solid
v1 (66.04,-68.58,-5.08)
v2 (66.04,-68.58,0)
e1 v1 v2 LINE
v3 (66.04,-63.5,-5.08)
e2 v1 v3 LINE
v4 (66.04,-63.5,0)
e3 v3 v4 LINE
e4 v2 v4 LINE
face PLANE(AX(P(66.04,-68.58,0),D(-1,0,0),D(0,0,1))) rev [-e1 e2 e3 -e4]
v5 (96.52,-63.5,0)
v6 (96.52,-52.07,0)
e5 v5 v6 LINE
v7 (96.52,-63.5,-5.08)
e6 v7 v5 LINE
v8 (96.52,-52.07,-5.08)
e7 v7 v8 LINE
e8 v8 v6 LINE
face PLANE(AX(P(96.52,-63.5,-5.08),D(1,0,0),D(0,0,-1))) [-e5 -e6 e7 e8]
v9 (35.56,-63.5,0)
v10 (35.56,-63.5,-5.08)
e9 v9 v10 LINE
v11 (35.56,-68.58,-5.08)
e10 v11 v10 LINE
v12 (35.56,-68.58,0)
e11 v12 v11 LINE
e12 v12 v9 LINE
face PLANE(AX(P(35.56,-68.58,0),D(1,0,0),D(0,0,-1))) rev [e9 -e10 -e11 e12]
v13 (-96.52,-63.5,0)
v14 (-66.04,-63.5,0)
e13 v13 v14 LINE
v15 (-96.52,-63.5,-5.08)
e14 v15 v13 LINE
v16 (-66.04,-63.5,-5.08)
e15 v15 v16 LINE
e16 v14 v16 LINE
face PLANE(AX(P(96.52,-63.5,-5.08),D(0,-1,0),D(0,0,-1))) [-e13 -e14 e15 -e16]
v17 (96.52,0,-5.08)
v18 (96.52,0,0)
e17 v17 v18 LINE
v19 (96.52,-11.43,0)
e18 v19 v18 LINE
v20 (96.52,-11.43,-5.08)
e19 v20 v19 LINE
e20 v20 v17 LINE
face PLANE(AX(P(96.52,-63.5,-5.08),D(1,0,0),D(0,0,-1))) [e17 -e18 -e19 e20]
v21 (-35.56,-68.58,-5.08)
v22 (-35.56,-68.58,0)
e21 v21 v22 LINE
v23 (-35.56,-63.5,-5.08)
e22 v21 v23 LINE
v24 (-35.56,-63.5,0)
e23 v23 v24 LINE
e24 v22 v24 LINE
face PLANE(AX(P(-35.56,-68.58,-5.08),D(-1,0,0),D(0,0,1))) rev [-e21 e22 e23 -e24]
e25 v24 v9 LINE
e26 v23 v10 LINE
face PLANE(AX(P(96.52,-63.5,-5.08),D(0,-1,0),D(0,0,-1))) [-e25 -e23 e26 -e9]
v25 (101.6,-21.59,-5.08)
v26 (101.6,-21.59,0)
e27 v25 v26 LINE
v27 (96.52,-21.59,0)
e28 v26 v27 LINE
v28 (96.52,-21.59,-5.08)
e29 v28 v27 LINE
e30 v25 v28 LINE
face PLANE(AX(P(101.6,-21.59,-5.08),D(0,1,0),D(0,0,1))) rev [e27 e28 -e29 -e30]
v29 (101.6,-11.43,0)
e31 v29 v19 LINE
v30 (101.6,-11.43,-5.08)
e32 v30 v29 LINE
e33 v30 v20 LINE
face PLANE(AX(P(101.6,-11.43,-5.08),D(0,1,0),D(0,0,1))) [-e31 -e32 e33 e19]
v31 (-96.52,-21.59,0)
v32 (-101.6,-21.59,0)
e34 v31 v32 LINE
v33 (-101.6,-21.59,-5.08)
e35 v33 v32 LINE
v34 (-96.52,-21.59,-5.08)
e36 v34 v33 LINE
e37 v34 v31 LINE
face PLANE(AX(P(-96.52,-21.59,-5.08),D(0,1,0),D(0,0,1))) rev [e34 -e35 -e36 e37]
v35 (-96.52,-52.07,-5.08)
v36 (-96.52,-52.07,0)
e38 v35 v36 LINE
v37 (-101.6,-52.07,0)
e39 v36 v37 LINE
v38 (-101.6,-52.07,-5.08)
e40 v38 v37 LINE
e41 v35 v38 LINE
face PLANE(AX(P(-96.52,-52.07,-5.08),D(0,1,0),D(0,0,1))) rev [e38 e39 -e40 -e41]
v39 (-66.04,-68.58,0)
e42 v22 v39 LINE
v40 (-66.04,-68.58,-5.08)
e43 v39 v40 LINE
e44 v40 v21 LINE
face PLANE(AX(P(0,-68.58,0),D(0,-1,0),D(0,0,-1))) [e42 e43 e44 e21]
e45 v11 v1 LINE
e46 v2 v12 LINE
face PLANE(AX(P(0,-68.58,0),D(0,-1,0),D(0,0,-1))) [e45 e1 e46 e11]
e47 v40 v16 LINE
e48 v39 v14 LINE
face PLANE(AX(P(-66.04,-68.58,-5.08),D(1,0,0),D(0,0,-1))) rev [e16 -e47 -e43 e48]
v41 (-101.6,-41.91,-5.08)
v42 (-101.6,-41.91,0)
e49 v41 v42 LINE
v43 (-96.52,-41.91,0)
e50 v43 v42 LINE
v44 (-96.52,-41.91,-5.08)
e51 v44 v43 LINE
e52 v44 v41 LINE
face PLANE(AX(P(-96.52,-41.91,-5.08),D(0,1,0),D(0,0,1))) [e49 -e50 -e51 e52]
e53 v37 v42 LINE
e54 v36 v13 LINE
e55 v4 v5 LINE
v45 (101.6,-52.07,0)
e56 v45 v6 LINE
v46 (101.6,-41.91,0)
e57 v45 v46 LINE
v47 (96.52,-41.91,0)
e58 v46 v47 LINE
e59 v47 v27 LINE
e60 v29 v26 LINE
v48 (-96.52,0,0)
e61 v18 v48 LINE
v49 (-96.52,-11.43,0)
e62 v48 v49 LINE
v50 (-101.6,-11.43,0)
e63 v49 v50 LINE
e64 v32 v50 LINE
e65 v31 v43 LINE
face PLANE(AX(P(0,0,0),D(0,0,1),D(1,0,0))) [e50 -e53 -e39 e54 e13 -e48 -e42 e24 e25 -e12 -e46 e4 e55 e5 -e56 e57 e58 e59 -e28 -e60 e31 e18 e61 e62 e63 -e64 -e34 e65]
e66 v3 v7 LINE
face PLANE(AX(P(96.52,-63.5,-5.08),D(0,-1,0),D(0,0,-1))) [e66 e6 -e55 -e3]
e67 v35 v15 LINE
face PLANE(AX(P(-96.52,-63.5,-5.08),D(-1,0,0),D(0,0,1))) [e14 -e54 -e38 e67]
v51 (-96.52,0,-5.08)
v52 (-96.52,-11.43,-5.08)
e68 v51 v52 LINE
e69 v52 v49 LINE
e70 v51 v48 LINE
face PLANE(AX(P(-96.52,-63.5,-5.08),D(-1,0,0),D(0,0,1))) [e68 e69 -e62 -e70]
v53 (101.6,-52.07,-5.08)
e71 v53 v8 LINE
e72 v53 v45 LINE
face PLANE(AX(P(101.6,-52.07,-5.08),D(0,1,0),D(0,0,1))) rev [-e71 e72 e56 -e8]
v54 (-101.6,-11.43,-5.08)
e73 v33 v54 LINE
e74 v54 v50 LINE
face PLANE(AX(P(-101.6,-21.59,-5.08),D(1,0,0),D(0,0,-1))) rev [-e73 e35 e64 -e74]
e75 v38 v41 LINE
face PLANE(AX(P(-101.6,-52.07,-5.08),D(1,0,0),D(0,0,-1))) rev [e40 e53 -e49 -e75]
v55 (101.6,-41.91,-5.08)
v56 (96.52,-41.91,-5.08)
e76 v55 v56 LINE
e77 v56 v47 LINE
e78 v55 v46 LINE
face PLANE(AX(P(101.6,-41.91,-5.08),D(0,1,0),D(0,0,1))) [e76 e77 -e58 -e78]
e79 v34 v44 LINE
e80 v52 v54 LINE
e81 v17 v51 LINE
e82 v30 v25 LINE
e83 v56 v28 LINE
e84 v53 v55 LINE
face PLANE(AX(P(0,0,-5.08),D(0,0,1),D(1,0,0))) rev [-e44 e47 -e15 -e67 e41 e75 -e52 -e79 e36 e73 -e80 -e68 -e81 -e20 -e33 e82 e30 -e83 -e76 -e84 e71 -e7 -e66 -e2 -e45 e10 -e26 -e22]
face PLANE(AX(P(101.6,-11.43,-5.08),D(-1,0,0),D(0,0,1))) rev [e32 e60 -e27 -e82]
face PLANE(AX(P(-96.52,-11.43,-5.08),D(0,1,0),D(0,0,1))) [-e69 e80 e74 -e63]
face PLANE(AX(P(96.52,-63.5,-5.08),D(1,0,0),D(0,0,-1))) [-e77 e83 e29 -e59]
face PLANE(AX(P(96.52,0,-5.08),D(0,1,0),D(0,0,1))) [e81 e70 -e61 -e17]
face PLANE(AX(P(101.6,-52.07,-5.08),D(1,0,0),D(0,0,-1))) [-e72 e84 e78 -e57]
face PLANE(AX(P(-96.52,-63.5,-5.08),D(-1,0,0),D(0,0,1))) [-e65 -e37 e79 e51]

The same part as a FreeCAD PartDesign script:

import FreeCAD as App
import Part
import Sketcher
from FreeCAD import Vector
Q = App.Units.Quantity

doc = App.newDocument("Part")
body = doc.addObject("PartDesign::Body", "Body")

sketch1 = body.newObject("Sketcher::SketchObject", "Sketch")
sketch1.AttachmentSupport = (doc.getObject("XY_Plane"), [""])
sketch1.MapMode = "FlatFace"
sketch1.addGeometry([
    Part.LineSegment(Vector(-97, 0, 0), Vector(-97, -64, 0)),
    Part.LineSegment(Vector(-97, -64, 0), Vector(97, -64, 0)),
    Part.LineSegment(Vector(97, -64, 0), Vector(97, 0, 0)),
    Part.LineSegment(Vector(97, 0, 0), Vector(-97, 0, 0)),
], False)
sketch1.addConstraint([
    Sketcher.Constraint("Coincident", 0, 2, 1, 1),
    Sketcher.Constraint("Coincident", 1, 2, 2, 1),
    Sketcher.Constraint("Coincident", 2, 2, 3, 1),
    Sketcher.Constraint("Coincident", 3, 2, 0, 1),
    Sketcher.Constraint("Vertical", 0),
    Sketcher.Constraint("Horizontal", 1),
    Sketcher.Constraint("Vertical", 2),
    Sketcher.Constraint("Horizontal", 3),
    Sketcher.Constraint("Symmetric", 2, 2, 3, 2, -1, 1),
    Sketcher.Constraint("DistanceX", 1, 1, 1, 2, Q("7.6 in")),
    Sketcher.Constraint("DistanceY", 0, 2, 0, 1, Q("2.5 in")),
])
pad1 = body.newObject("PartDesign::Pad", "Pad")
pad1.Profile = sketch1
pad1.Length = Q("0.2 in")
pad1.Reversed = True

sketch2 = body.newObject("Sketcher::SketchObject", "Sketch001")
sketch2.AttachmentSupport = (doc.getObject("XY_Plane"), [""])
sketch2.MapMode = "FlatFace"
sketch2.addGeometry([
    Part.LineSegment(Vector(97, -42, 0), Vector(97, -52, 0)),
    Part.LineSegment(Vector(97, -52, 0), Vector(102, -52, 0)),
    Part.LineSegment(Vector(102, -52, 0), Vector(102, -42, 0)),
    Part.LineSegment(Vector(102, -42, 0), Vector(97, -42, 0)),
    Part.LineSegment(Vector(97, -11, 0), Vector(97, -22, 0)),
    Part.LineSegment(Vector(97, -22, 0), Vector(102, -22, 0)),
    Part.LineSegment(Vector(102, -22, 0), Vector(102, -11, 0)),
    Part.LineSegment(Vector(102, -11, 0), Vector(97, -11, 0)),
    Part.LineSegment(Vector(-102, -42, 0), Vector(-102, -52, 0)),
    Part.LineSegment(Vector(-102, -52, 0), Vector(-97, -52, 0)),
    Part.LineSegment(Vector(-97, -52, 0), Vector(-97, -42, 0)),
    Part.LineSegment(Vector(-97, -42, 0), Vector(-102, -42, 0)),
    Part.LineSegment(Vector(-102, -11, 0), Vector(-102, -22, 0)),
    Part.LineSegment(Vector(-102, -22, 0), Vector(-97, -22, 0)),
    Part.LineSegment(Vector(-97, -22, 0), Vector(-97, -11, 0)),
    Part.LineSegment(Vector(-97, -11, 0), Vector(-102, -11, 0)),
], False)
sketch2.addConstraint([
    Sketcher.Constraint("Coincident", 0, 2, 1, 1),
    Sketcher.Constraint("Coincident", 1, 2, 2, 1),
    Sketcher.Constraint("Coincident", 2, 2, 3, 1),
    Sketcher.Constraint("Coincident", 3, 2, 0, 1),
    Sketcher.Constraint("Coincident", 4, 2, 5, 1),
    Sketcher.Constraint("Coincident", 5, 2, 6, 1),
    Sketcher.Constraint("Coincident", 6, 2, 7, 1),
    Sketcher.Constraint("Coincident", 7, 2, 4, 1),
    Sketcher.Constraint("Coincident", 8, 2, 9, 1),
    Sketcher.Constraint("Coincident", 9, 2, 10, 1),
    Sketcher.Constraint("Coincident", 10, 2, 11, 1),
    Sketcher.Constraint("Coincident", 11, 2, 8, 1),
    Sketcher.Constraint("Coincident", 12, 2, 13, 1),
    Sketcher.Constraint("Coincident", 13, 2, 14, 1),
    Sketcher.Constraint("Coincident", 14, 2, 15, 1),
    Sketcher.Constraint("Coincident", 15, 2, 12, 1),
    Sketcher.Constraint("Vertical", 0),
    Sketcher.Constraint("Horizontal", 1),
    Sketcher.Constraint("Vertical", 2),
    Sketcher.Constraint("Horizontal", 3),
    Sketcher.Constraint("Vertical", 4),
    Sketcher.Constraint("Horizontal", 5),
    Sketcher.Constraint("Vertical", 6),
    Sketcher.Constraint("Horizontal", 7),
    Sketcher.Constraint("Vertical", 8),
    Sketcher.Constraint("Horizontal", 9),
    Sketcher.Constraint("Vertical", 10),
    Sketcher.Constraint("Horizontal", 11),
    Sketcher.Constraint("Vertical", 12),
    Sketcher.Constraint("Horizontal", 13),
    Sketcher.Constraint("Vertical", 14),
    Sketcher.Constraint("Horizontal", 15),
    Sketcher.Constraint("Symmetric", 1, 2, 8, 2, -2),
    Sketcher.Constraint("Symmetric", 3, 2, 10, 2, -2),
    Sketcher.Constraint("Symmetric", 5, 2, 12, 2, -2),
    Sketcher.Constraint("Symmetric", 7, 2, 14, 2, -2),
    Sketcher.Constraint("Vertical", 3, 2, 4, 2),
    Sketcher.Constraint("Vertical", 2, 2, 5, 2),
    Sketcher.Constraint("Equal", 2, 4),
    Sketcher.Constraint("DistanceX", 1, 1, 1, 2, Q("0.2 in")),
    Sketcher.Constraint("DistanceY", 0, 2, 0, 1, Q("0.4 in")),
    Sketcher.Constraint("DistanceX", -1, 1, 1, 2, Q("4 in")),
    Sketcher.Constraint("DistanceY", 3, 2, 4, 2, Q("0.8 in")),
    Sketcher.Constraint("DistanceY", 0, 2, -1, 1, Q("2.05 in")),
])
pad2 = body.newObject("PartDesign::Pad", "Pad001")
pad2.Profile = sketch2
pad2.Length = Q("0.2 in")
pad2.Reversed = True

sketch3 = body.newObject("Sketcher::SketchObject", "Sketch002")
sketch3.AttachmentSupport = (doc.getObject("XZ_Plane"), [""])
sketch3.MapMode = "FlatFace"
sketch3.AttachmentOffset = App.Placement(Vector(0, 0, 2.5 * 25.4), App.Rotation())
sketch3.addGeometry([
    Part.LineSegment(Vector(36, 0, 0), Vector(36, -5, 0)),
    Part.LineSegment(Vector(36, -5, 0), Vector(66, -5, 0)),
    Part.LineSegment(Vector(66, -5, 0), Vector(66, 0, 0)),
    Part.LineSegment(Vector(66, 0, 0), Vector(36, 0, 0)),
    Part.LineSegment(Vector(-66, 0, 0), Vector(-66, -5, 0)),
    Part.LineSegment(Vector(-66, -5, 0), Vector(-36, -5, 0)),
    Part.LineSegment(Vector(-36, -5, 0), Vector(-36, 0, 0)),
    Part.LineSegment(Vector(-36, 0, 0), Vector(-66, 0, 0)),
], False)
sketch3.addConstraint([
    Sketcher.Constraint("Coincident", 0, 2, 1, 1),
    Sketcher.Constraint("Coincident", 1, 2, 2, 1),
    Sketcher.Constraint("Coincident", 2, 2, 3, 1),
    Sketcher.Constraint("Coincident", 3, 2, 0, 1),
    Sketcher.Constraint("Coincident", 4, 2, 5, 1),
    Sketcher.Constraint("Coincident", 5, 2, 6, 1),
    Sketcher.Constraint("Coincident", 6, 2, 7, 1),
    Sketcher.Constraint("Coincident", 7, 2, 4, 1),
    Sketcher.Constraint("Vertical", 0),
    Sketcher.Constraint("Horizontal", 1),
    Sketcher.Constraint("Vertical", 2),
    Sketcher.Constraint("Horizontal", 3),
    Sketcher.Constraint("Vertical", 4),
    Sketcher.Constraint("Horizontal", 5),
    Sketcher.Constraint("Vertical", 6),
    Sketcher.Constraint("Horizontal", 7),
    Sketcher.Constraint("Symmetric", 3, 2, 6, 2, -1, 1),
    Sketcher.Constraint("Symmetric", 1, 2, 4, 2, -2),
    Sketcher.Constraint("PointOnObject", 2, 2, -1),
    Sketcher.Constraint("DistanceX", 1, 1, 1, 2, Q("1.2 in")),
    Sketcher.Constraint("DistanceY", 0, 2, 0, 1, Q("0.2 in")),
    Sketcher.Constraint("DistanceX", 4, 2, 0, 2, Q("4 in")),
])
pad3 = body.newObject("PartDesign::Pad", "Pad002")
pad3.Profile = sketch3
pad3.Length = Q("0.2 in")

doc.recompute()
